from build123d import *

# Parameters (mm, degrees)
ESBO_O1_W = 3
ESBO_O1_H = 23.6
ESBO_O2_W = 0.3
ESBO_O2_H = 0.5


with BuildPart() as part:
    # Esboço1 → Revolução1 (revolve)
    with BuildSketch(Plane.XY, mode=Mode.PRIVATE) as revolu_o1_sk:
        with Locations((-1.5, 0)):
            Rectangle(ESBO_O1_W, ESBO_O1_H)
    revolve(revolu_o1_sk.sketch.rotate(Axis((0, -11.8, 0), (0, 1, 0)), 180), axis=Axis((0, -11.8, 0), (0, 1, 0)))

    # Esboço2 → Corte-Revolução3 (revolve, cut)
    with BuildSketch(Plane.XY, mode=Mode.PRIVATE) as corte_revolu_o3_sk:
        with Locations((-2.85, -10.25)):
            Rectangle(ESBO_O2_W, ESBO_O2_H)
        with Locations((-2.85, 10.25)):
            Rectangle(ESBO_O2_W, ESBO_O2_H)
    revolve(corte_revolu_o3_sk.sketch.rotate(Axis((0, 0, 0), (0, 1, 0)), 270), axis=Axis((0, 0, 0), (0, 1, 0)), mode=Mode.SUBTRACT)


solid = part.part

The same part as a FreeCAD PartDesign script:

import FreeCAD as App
import Part
import Sketcher
Q = App.Units.Quantity


def add_polygon(sketch, points):
    """Adds a closed chain of lines whose ends are joined by coincident constraints."""
    first, n = sketch.GeometryCount, len(points)
    for a, b in zip(points, points[1:] + points[:1]):
        sketch.addGeometry(Part.LineSegment(App.Vector(*a, 0), App.Vector(*b, 0)), False)
    for i in range(n):
        sketch.addConstraint(Sketcher.Constraint("Coincident", first + i, 2, first + (i + 1) % n, 1))

doc = App.newDocument("Part")
params = doc.addObject("Spreadsheet::Sheet", "Params")
for row, (alias, value) in enumerate([
    ("sketch1_width", "3 mm"),
    ("sketch1_height", "23.6 mm"),
    ("revolution_angle", "360 deg"),
    ("sketch2_width", "0.3 mm"),
    ("sketch2_height", "0.5 mm"),
    ("groove_angle", "360 deg"),
], start=1):
    params.set(f"A{row}", alias)
    params.set(f"B{row}", "=" + value)
    params.setAlias(f"B{row}", alias)

body = doc.addObject("PartDesign::Body", "Body")

# Sketch on XY plane
sketch1 = doc.addObject("Sketcher::SketchObject", "Sketch")
body.addObject(sketch1)
sketch1.AttachmentSupport = (doc.XY_Plane, [""])
sketch1.MapMode = "FlatFace"
add_polygon(sketch1, [(-3, 11.8), (-3, -11.8), (0, -11.8), (0, 11.8)])  # lines 0-3
sketch1.addConstraint(Sketcher.Constraint("Vertical", 0))
sketch1.addConstraint(Sketcher.Constraint("Horizontal", 1))
sketch1.addConstraint(Sketcher.Constraint("Vertical", 2))
sketch1.addConstraint(Sketcher.Constraint("Horizontal", 3))
sketch1.addConstraint(Sketcher.Constraint("Symmetric", 1, 2, 2, 2, -1, 1))
sketch1.addConstraint(Sketcher.Constraint("DistanceX", 1, 1, 1, 2, Q("3 mm")))
sketch1.addConstraint(Sketcher.Constraint("DistanceY", 0, 2, 0, 1, Q("23.6 mm")))
sketch1.setExpression("Constraints[9]", "Params.sketch1_width")
sketch1.setExpression("Constraints[10]", "Params.sketch1_height")
revolution = doc.addObject("PartDesign::Revolution", "Revolution")
body.addObject(revolution)
revolution.Profile = sketch1
revolution.ReferenceAxis = (sketch1, ["V_Axis"])
revolution.setExpression("Angle", "Params.revolution_angle")

# Sketch on XY plane
sketch2 = doc.addObject("Sketcher::SketchObject", "Sketch001")
body.addObject(sketch2)
sketch2.AttachmentSupport = (doc.XY_Plane, [""])
sketch2.MapMode = "FlatFace"
add_polygon(sketch2, [(-3, -10), (-3, -10.5), (-2.7, -10.5), (-2.7, -10)])  # lines 0-3
add_polygon(sketch2, [(-3, 10.5), (-3, 10), (-2.7, 10), (-2.7, 10.5)])  # lines 4-7
sketch2.addConstraint(Sketcher.Constraint("Vertical", 0))
sketch2.addConstraint(Sketcher.Constraint("Horizontal", 1))
sketch2.addConstraint(Sketcher.Constraint("Vertical", 2))
sketch2.addConstraint(Sketcher.Constraint("Horizontal", 3))
sketch2.addConstraint(Sketcher.Constraint("Vertical", 4))
sketch2.addConstraint(Sketcher.Constraint("Horizontal", 5))
sketch2.addConstraint(Sketcher.Constraint("Vertical", 6))
sketch2.addConstraint(Sketcher.Constraint("Horizontal", 7))
sketch2.addConstraint(Sketcher.Constraint("Symmetric", 3, 2, 4, 2, -1))
sketch2.addConstraint(Sketcher.Constraint("Symmetric", 1, 2, 6, 2, -1))
sketch2.addConstraint(Sketcher.Constraint("DistanceX", 1, 1, 1, 2, Q("0.3 mm")))
sketch2.addConstraint(Sketcher.Constraint("DistanceY", 0, 2, 0, 1, Q("0.5 mm")))
sketch2.addConstraint(Sketcher.Constraint("DistanceX", 0, 2, -1, 1, Q("3 mm")))
sketch2.addConstraint(Sketcher.Constraint("DistanceY", 2, 2, -1, 1, Q("10 mm")))
sketch2.setExpression("Constraints[18]", "Params.sketch2_width")
sketch2.setExpression("Constraints[19]", "Params.sketch2_height")
groove = doc.addObject("PartDesign::Groove", "Groove")
body.addObject(groove)
groove.Profile = sketch2
groove.ReferenceAxis = (sketch2, ["V_Axis"])
groove.setExpression("Angle", "Params.groove_angle")

doc.recompute()
